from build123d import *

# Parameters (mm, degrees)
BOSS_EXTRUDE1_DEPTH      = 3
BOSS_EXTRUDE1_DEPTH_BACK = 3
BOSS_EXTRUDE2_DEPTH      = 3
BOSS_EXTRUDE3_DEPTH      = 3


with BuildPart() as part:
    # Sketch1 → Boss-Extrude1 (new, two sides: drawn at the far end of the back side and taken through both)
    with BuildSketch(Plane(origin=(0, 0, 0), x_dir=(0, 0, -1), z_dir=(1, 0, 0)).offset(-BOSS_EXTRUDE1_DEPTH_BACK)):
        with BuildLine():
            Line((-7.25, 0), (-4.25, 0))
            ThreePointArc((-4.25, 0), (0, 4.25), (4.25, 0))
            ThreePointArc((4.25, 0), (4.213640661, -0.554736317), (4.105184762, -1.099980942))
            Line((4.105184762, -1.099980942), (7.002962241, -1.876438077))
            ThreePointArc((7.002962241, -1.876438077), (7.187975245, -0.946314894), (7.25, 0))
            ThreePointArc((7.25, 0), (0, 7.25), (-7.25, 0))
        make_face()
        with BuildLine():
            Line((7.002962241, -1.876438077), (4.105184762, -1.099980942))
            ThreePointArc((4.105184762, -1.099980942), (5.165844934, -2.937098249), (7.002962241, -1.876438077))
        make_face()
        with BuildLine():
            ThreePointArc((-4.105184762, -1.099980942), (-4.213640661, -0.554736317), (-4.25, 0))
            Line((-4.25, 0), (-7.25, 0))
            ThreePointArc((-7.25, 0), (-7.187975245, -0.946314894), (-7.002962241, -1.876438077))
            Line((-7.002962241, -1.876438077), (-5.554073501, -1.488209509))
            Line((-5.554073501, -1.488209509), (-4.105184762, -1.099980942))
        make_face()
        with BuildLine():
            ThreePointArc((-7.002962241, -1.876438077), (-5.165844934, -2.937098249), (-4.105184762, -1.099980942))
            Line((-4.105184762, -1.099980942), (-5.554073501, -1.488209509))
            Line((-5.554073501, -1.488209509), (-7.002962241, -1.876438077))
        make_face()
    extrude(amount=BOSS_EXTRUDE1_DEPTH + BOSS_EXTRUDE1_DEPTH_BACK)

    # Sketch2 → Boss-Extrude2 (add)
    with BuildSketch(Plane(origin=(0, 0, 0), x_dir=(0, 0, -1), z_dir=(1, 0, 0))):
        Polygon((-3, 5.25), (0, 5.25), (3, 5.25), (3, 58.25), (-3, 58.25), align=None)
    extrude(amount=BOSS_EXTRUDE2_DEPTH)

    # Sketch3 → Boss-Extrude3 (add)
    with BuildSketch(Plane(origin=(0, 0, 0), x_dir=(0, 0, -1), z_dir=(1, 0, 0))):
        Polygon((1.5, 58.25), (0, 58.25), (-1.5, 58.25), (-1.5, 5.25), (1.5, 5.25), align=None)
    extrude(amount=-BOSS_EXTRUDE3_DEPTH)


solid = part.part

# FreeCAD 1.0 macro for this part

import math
import FreeCAD as App
import Part
import Sketcher


def add_polygon(sketch, points):
    """Adds a closed chain of lines whose ends are joined by coincident constraints."""
    first, n = sketch.GeometryCount, len(points)
    for a, b in zip(points, points[1:] + points[:1]):
        sketch.addGeometry(Part.LineSegment(App.Vector(*a, 0), App.Vector(*b, 0)), False)
    for i in range(n):
        sketch.addConstraint(Sketcher.Constraint("Coincident", first + i, 2, first + (i + 1) % n, 1))

doc = App.newDocument("Part")
body = doc.addObject("PartDesign::Body", "Body")

sketch1 = body.newObject("Sketcher::SketchObject", "Sketch")
sketch1.AttachmentSupport = (doc.getObject("YZ_Plane"), [""])
sketch1.MapMode = "FlatFace"
sketch1.addGeometry([
    Part.ArcOfCircle(Part.Circle(App.Vector(0, 0, 0), App.Vector(0, 0, 1), 4.2), math.radians(-90), math.radians(90)),
    Part.ArcOfCircle(Part.Circle(App.Vector(0, 0, 0), App.Vector(0, 0, 1), 4.3), math.radians(-105), math.radians(-90)),
    Part.ArcOfCircle(Part.Circle(App.Vector(-1.5, -5.6, 0), App.Vector(0, 0, 1), 1.5), math.radians(75), math.radians(255)),
    Part.ArcOfCircle(Part.Circle(App.Vector(0, 0, 0), App.Vector(0, 0, 1), 7.3), math.radians(-105), math.radians(-90)),
    Part.ArcOfCircle(Part.Circle(App.Vector(0, 0, 0), App.Vector(0, 0, 1), 7.2), math.radians(-90), math.radians(90)),
    Part.ArcOfCircle(Part.Circle(App.Vector(0, 0, 0), App.Vector(0, 0, 1), 7.3), math.radians(90), math.radians(105)),
    Part.ArcOfCircle(Part.Circle(App.Vector(-1.5, 5.6, 0), App.Vector(0, 0, 1), 1.5), math.radians(105), math.radians(285)),
    Part.ArcOfCircle(Part.Circle(App.Vector(0, 0, 0), App.Vector(0, 0, 1), 4.3), math.radians(90), math.radians(105)),
], False)
sketch1.addConstraint([
    Sketcher.Constraint("Tangent", 0, 1, 1, 2),
    Sketcher.Constraint("Tangent", 1, 1, 2, 1),
    Sketcher.Constraint("Tangent", 2, 2, 3, 1),
    Sketcher.Constraint("Tangent", 3, 2, 4, 1),
    Sketcher.Constraint("Tangent", 4, 2, 5, 1),
    Sketcher.Constraint("Tangent", 5, 2, 6, 1),
    Sketcher.Constraint("Tangent", 6, 2, 7, 2),
    Sketcher.Constraint("Tangent", 7, 1, 0, 2),
    Sketcher.Constraint("Coincident", 0, 3, -1, 1),
    Sketcher.Constraint("Coincident", 3, 3, -1, 1),
    Sketcher.Constraint("Equal", 0, 1),
    Sketcher.Constraint("Equal", 3, 4),
    Sketcher.Constraint("Equal", 4, 5),
    Sketcher.Constraint("Equal", 2, 6),
    Sketcher.Constraint("PointOnObject", 0, 1, -2),
    Sketcher.Constraint("PointOnObject", 3, 2, -2),
    Sketcher.Constraint("PointOnObject", 4, 2, -2),
    Sketcher.Constraint("PointOnObject", 7, 1, -2),
    Sketcher.Constraint("Vertical", 2, 3, 6, 3),
    Sketcher.Constraint("Radius", 2, 1.5),
    Sketcher.Constraint("Radius", 0, 4.25),
    Sketcher.Constraint("DistanceX", 2, 3, -1, 1, 1.48821),
])
pad1 = body.newObject("PartDesign::Pad", "Pad")
pad1.Profile = sketch1
pad1.Type = "TwoLengths"
pad1.Length = 3
pad1.Length2 = 3

sketch2 = body.newObject("Sketcher::SketchObject", "Sketch001")
sketch2.AttachmentSupport = (doc.getObject("YZ_Plane"), [""])
sketch2.MapMode = "FlatFace"
add_polygon(sketch2, [(5, 3), (5, -3), (58, -3), (58, 3)])
sketch2.addConstraint([
    Sketcher.Constraint("Vertical", 0),
    Sketcher.Constraint("Horizontal", 1),
    Sketcher.Constraint("Vertical", 2),
    Sketcher.Constraint("Horizontal", 3),
    Sketcher.Constraint("DistanceX", 1, 1, 1, 2, 53.0),
    Sketcher.Constraint("DistanceY", 0, 2, 0, 1, 6.0),
    Sketcher.Constraint("DistanceY", 0, 2, -1, 1, 3.0),
    Sketcher.Constraint("DistanceX", -1, 1, 0, 2, 5.25),
])
pad2 = body.newObject("PartDesign::Pad", "Pad001")
pad2.Profile = sketch2
pad2.Length = 3

sketch3 = body.newObject("Sketcher::SketchObject", "Sketch002")
sketch3.AttachmentSupport = (doc.getObject("YZ_Plane"), [""])
sketch3.MapMode = "FlatFace"
add_polygon(sketch3, [(58.2, -1.5), (58.2, 1.5), (5.2, 1.5), (5.2, -1.5)])
sketch3.addConstraint([
    Sketcher.Constraint("Vertical", 0),
    Sketcher.Constraint("Horizontal", 1),
    Sketcher.Constraint("Vertical", 2),
    Sketcher.Constraint("Horizontal", 3),
    Sketcher.Constraint("DistanceX", 1, 2, 1, 1, 53.0),
    Sketcher.Constraint("DistanceY", 0, 1, 0, 2, 3.0),
    Sketcher.Constraint("DistanceY", -1, 1, 0, 2, 1.5),
    Sketcher.Constraint("DistanceX", -1, 1, 0, 2, 58.25),
])
pad3 = body.newObject("PartDesign::Pad", "Pad002")
pad3.Profile = sketch3
pad3.Length = 3
pad3.Reversed = True

doc.recompute()
